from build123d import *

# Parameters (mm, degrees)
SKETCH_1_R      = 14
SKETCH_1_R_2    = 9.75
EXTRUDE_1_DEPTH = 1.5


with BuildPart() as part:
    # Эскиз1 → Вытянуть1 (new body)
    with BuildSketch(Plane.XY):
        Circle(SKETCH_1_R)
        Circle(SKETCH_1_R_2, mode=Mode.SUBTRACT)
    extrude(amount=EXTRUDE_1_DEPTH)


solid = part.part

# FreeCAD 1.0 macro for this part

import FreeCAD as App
import Part
import Sketcher

doc = App.newDocument("Part")
body = doc.addObject("PartDesign::Body", "Body")

# Sketch on XY plane
sketch1 = body.newObject("Sketcher::SketchObject", "Sketch")
sketch1.AttachmentSupport = (doc.getObject("XY_Plane"), [""])
sketch1.MapMode = "FlatFace"
sketch1.addGeometry(Part.Circle(App.Vector(0, 0, 0), App.Vector(0, 0, 1), 14), False)
sketch1.addGeometry(Part.Circle(App.Vector(0, 0, 0), App.Vector(0, 0, 1), 10), False)
sketch1.addConstraint(Sketcher.Constraint("Coincident", 0, 3, -1, 1))
sketch1.addConstraint(Sketcher.Constraint("Coincident", 1, 3, -1, 1))
sketch1.addConstraint(Sketcher.Constraint("Diameter", 0, 28.0))
sketch1.addConstraint(Sketcher.Constraint("Diameter", 1, 19.5))
pad1 = body.newObject("PartDesign::Pad", "Pad")
pad1.Profile = sketch1
pad1.Length = 1.5

doc.recompute()
